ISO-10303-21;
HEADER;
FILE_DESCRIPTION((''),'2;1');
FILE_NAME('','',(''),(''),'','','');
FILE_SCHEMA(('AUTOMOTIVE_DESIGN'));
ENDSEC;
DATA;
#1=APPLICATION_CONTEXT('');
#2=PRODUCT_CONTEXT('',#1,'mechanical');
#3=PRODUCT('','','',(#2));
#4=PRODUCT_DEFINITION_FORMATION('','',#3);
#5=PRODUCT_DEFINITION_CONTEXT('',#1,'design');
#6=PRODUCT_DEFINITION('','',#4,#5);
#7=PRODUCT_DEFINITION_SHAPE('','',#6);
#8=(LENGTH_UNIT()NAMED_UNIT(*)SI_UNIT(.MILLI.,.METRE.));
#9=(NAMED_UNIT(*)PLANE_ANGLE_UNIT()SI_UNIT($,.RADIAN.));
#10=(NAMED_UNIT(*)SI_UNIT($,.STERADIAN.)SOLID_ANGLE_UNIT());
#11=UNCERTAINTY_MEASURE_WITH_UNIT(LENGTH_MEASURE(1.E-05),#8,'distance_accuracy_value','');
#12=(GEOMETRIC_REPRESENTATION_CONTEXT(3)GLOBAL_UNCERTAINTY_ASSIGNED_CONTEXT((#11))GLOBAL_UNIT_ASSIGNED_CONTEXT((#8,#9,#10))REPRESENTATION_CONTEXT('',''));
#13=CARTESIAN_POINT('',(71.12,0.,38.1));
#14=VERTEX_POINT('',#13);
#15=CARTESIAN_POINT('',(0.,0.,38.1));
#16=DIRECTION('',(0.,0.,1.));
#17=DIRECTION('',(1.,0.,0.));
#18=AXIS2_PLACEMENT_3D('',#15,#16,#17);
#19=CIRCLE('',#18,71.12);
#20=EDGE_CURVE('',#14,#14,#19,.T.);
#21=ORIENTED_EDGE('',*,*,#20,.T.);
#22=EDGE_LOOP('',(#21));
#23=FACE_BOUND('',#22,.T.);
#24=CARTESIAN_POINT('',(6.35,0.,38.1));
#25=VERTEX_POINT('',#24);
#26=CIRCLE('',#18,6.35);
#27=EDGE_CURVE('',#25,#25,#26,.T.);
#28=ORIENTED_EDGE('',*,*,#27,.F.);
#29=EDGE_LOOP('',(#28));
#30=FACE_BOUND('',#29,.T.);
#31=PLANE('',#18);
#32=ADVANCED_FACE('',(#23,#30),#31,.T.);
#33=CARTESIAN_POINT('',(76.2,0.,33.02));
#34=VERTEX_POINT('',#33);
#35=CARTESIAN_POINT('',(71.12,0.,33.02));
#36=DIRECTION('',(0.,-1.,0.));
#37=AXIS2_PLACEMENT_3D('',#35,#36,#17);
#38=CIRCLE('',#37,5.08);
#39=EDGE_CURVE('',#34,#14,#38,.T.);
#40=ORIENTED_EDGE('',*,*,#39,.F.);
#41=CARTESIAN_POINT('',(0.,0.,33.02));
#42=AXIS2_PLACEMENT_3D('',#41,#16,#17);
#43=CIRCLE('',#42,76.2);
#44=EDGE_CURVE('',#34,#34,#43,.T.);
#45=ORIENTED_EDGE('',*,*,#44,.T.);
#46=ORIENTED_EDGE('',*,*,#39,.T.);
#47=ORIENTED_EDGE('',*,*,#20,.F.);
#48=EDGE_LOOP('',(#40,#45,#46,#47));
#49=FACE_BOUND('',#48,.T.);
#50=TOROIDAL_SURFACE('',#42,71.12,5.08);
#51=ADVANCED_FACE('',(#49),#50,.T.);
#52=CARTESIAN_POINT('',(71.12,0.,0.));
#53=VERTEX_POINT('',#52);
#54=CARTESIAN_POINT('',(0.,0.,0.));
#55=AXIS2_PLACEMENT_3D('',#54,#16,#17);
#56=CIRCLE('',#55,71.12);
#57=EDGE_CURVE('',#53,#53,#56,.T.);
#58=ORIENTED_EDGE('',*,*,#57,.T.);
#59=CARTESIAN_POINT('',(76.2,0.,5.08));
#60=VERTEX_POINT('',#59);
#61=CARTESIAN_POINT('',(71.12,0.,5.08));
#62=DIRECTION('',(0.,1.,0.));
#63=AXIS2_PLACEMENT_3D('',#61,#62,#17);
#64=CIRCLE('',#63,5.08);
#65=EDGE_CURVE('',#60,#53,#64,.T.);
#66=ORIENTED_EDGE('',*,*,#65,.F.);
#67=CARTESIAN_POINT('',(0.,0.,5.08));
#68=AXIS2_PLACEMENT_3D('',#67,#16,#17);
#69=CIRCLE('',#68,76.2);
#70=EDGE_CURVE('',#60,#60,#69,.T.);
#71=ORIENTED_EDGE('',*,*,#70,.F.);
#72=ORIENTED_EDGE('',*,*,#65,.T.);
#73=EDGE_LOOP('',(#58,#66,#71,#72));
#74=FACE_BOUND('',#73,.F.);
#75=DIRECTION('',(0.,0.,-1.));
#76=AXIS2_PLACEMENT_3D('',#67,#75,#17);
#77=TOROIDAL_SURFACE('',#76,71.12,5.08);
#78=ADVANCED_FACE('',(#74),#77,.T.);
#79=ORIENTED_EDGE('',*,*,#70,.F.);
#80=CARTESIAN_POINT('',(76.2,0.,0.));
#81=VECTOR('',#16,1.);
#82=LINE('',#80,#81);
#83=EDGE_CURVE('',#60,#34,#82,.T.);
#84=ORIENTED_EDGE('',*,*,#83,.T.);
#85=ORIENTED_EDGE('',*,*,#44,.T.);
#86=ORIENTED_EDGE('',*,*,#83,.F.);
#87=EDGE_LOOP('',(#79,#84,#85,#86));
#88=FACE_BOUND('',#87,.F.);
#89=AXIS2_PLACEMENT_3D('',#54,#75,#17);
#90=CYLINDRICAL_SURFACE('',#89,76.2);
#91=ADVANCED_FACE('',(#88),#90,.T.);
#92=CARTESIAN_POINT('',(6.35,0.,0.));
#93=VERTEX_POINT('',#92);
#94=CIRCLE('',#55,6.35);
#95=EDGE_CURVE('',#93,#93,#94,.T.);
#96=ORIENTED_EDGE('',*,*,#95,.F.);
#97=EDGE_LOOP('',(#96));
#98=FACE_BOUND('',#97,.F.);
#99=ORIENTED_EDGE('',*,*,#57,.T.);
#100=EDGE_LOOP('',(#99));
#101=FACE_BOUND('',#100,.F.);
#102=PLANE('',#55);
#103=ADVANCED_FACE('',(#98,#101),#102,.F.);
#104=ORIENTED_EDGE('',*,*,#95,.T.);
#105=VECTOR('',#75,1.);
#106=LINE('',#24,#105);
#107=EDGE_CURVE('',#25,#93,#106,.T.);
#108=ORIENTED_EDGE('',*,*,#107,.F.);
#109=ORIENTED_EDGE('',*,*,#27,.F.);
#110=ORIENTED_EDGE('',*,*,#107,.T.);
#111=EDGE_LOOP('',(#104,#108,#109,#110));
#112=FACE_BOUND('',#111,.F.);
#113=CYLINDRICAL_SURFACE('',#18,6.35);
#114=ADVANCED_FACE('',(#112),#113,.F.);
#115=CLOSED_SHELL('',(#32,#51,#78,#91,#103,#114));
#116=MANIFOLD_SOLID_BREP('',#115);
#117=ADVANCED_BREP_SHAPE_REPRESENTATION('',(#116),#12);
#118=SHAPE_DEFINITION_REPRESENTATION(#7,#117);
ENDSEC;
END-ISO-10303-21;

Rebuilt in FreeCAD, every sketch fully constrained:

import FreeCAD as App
import Part
import Sketcher

V = App.Vector
Q = App.Units.Quantity


def edges_at(feature, points):
    """Names of the edges that pass closest to the given points."""
    edges = feature.Shape.Edges
    near = lambda p: min(range(len(edges)), key=lambda i: edges[i].distToShape(Part.Vertex(*p))[0])
    return sorted({f"Edge{near(p) + 1}" for p in points})

doc = App.newDocument("Part")
params = doc.addObject("Spreadsheet::Sheet", "Params")
for row, (alias, value) in enumerate([
    ("sketch1_diameter", "6 in"),
    ("pad1_length", "1.5 in"),
    ("sketch2_diameter", "0.5 in"),
    ("pocket1_length", "1.5 in"),
    ("fillet_radius", "0.2 in"),
], start=1):
    params.set(f"A{row}", alias)
    params.set(f"B{row}", "=" + value)
    params.setAlias(f"B{row}", alias)

body = doc.addObject("PartDesign::Body", "Body")

# Sketch on XY plane
sketch1 = body.newObject("Sketcher::SketchObject", "Sketch")
sketch1.AttachmentSupport = (doc.getObject("XY_Plane"), [""])
sketch1.MapMode = "FlatFace"
sketch1.addGeometry(Part.Circle(V(0, 0, 0), V(0, 0, 1), 76), False)
sketch1.addConstraint([
    Sketcher.Constraint("Coincident", 0, 3, -1, 1),
    Sketcher.Constraint("Diameter", 0, Q("6 in")),
])
sketch1.setExpression("Constraints[1]", "Params.sketch1_diameter")
pad1 = body.newObject("PartDesign::Pad", "Pad")
pad1.Profile = sketch1
pad1.setExpression("Length", "Params.pad1_length")

# Sketch on XY plane
sketch2 = body.newObject("Sketcher::SketchObject", "Sketch001")
sketch2.AttachmentSupport = (doc.getObject("XY_Plane"), [""])
sketch2.MapMode = "FlatFace"
sketch2.AttachmentOffset = App.Placement(V(0, 0, 1.5 * 25.4), App.Rotation())
sketch2.addGeometry(Part.Circle(V(0, 0, 0), V(0, 0, 1), 6), False)
sketch2.addConstraint([
    Sketcher.Constraint("Coincident", 0, 3, -1, 1),
    Sketcher.Constraint("Diameter", 0, Q("0.5 in")),
])
sketch2.setExpression("Constraints[1]", "Params.sketch2_diameter")
pocket1 = body.newObject("PartDesign::Pocket", "Pocket")
pocket1.Profile = sketch2
pocket1.setExpression("Length", "Params.pocket1_length")
doc.recompute()

fillet = body.newObject("PartDesign::Fillet", "Fillet")
fillet.Base = (pocket1, edges_at(pocket1, [(-76.2, 0, 38.1), (-76.2, 0, 0)]))
fillet.setExpression("Radius", "Params.fillet_radius")

doc.recompute()
